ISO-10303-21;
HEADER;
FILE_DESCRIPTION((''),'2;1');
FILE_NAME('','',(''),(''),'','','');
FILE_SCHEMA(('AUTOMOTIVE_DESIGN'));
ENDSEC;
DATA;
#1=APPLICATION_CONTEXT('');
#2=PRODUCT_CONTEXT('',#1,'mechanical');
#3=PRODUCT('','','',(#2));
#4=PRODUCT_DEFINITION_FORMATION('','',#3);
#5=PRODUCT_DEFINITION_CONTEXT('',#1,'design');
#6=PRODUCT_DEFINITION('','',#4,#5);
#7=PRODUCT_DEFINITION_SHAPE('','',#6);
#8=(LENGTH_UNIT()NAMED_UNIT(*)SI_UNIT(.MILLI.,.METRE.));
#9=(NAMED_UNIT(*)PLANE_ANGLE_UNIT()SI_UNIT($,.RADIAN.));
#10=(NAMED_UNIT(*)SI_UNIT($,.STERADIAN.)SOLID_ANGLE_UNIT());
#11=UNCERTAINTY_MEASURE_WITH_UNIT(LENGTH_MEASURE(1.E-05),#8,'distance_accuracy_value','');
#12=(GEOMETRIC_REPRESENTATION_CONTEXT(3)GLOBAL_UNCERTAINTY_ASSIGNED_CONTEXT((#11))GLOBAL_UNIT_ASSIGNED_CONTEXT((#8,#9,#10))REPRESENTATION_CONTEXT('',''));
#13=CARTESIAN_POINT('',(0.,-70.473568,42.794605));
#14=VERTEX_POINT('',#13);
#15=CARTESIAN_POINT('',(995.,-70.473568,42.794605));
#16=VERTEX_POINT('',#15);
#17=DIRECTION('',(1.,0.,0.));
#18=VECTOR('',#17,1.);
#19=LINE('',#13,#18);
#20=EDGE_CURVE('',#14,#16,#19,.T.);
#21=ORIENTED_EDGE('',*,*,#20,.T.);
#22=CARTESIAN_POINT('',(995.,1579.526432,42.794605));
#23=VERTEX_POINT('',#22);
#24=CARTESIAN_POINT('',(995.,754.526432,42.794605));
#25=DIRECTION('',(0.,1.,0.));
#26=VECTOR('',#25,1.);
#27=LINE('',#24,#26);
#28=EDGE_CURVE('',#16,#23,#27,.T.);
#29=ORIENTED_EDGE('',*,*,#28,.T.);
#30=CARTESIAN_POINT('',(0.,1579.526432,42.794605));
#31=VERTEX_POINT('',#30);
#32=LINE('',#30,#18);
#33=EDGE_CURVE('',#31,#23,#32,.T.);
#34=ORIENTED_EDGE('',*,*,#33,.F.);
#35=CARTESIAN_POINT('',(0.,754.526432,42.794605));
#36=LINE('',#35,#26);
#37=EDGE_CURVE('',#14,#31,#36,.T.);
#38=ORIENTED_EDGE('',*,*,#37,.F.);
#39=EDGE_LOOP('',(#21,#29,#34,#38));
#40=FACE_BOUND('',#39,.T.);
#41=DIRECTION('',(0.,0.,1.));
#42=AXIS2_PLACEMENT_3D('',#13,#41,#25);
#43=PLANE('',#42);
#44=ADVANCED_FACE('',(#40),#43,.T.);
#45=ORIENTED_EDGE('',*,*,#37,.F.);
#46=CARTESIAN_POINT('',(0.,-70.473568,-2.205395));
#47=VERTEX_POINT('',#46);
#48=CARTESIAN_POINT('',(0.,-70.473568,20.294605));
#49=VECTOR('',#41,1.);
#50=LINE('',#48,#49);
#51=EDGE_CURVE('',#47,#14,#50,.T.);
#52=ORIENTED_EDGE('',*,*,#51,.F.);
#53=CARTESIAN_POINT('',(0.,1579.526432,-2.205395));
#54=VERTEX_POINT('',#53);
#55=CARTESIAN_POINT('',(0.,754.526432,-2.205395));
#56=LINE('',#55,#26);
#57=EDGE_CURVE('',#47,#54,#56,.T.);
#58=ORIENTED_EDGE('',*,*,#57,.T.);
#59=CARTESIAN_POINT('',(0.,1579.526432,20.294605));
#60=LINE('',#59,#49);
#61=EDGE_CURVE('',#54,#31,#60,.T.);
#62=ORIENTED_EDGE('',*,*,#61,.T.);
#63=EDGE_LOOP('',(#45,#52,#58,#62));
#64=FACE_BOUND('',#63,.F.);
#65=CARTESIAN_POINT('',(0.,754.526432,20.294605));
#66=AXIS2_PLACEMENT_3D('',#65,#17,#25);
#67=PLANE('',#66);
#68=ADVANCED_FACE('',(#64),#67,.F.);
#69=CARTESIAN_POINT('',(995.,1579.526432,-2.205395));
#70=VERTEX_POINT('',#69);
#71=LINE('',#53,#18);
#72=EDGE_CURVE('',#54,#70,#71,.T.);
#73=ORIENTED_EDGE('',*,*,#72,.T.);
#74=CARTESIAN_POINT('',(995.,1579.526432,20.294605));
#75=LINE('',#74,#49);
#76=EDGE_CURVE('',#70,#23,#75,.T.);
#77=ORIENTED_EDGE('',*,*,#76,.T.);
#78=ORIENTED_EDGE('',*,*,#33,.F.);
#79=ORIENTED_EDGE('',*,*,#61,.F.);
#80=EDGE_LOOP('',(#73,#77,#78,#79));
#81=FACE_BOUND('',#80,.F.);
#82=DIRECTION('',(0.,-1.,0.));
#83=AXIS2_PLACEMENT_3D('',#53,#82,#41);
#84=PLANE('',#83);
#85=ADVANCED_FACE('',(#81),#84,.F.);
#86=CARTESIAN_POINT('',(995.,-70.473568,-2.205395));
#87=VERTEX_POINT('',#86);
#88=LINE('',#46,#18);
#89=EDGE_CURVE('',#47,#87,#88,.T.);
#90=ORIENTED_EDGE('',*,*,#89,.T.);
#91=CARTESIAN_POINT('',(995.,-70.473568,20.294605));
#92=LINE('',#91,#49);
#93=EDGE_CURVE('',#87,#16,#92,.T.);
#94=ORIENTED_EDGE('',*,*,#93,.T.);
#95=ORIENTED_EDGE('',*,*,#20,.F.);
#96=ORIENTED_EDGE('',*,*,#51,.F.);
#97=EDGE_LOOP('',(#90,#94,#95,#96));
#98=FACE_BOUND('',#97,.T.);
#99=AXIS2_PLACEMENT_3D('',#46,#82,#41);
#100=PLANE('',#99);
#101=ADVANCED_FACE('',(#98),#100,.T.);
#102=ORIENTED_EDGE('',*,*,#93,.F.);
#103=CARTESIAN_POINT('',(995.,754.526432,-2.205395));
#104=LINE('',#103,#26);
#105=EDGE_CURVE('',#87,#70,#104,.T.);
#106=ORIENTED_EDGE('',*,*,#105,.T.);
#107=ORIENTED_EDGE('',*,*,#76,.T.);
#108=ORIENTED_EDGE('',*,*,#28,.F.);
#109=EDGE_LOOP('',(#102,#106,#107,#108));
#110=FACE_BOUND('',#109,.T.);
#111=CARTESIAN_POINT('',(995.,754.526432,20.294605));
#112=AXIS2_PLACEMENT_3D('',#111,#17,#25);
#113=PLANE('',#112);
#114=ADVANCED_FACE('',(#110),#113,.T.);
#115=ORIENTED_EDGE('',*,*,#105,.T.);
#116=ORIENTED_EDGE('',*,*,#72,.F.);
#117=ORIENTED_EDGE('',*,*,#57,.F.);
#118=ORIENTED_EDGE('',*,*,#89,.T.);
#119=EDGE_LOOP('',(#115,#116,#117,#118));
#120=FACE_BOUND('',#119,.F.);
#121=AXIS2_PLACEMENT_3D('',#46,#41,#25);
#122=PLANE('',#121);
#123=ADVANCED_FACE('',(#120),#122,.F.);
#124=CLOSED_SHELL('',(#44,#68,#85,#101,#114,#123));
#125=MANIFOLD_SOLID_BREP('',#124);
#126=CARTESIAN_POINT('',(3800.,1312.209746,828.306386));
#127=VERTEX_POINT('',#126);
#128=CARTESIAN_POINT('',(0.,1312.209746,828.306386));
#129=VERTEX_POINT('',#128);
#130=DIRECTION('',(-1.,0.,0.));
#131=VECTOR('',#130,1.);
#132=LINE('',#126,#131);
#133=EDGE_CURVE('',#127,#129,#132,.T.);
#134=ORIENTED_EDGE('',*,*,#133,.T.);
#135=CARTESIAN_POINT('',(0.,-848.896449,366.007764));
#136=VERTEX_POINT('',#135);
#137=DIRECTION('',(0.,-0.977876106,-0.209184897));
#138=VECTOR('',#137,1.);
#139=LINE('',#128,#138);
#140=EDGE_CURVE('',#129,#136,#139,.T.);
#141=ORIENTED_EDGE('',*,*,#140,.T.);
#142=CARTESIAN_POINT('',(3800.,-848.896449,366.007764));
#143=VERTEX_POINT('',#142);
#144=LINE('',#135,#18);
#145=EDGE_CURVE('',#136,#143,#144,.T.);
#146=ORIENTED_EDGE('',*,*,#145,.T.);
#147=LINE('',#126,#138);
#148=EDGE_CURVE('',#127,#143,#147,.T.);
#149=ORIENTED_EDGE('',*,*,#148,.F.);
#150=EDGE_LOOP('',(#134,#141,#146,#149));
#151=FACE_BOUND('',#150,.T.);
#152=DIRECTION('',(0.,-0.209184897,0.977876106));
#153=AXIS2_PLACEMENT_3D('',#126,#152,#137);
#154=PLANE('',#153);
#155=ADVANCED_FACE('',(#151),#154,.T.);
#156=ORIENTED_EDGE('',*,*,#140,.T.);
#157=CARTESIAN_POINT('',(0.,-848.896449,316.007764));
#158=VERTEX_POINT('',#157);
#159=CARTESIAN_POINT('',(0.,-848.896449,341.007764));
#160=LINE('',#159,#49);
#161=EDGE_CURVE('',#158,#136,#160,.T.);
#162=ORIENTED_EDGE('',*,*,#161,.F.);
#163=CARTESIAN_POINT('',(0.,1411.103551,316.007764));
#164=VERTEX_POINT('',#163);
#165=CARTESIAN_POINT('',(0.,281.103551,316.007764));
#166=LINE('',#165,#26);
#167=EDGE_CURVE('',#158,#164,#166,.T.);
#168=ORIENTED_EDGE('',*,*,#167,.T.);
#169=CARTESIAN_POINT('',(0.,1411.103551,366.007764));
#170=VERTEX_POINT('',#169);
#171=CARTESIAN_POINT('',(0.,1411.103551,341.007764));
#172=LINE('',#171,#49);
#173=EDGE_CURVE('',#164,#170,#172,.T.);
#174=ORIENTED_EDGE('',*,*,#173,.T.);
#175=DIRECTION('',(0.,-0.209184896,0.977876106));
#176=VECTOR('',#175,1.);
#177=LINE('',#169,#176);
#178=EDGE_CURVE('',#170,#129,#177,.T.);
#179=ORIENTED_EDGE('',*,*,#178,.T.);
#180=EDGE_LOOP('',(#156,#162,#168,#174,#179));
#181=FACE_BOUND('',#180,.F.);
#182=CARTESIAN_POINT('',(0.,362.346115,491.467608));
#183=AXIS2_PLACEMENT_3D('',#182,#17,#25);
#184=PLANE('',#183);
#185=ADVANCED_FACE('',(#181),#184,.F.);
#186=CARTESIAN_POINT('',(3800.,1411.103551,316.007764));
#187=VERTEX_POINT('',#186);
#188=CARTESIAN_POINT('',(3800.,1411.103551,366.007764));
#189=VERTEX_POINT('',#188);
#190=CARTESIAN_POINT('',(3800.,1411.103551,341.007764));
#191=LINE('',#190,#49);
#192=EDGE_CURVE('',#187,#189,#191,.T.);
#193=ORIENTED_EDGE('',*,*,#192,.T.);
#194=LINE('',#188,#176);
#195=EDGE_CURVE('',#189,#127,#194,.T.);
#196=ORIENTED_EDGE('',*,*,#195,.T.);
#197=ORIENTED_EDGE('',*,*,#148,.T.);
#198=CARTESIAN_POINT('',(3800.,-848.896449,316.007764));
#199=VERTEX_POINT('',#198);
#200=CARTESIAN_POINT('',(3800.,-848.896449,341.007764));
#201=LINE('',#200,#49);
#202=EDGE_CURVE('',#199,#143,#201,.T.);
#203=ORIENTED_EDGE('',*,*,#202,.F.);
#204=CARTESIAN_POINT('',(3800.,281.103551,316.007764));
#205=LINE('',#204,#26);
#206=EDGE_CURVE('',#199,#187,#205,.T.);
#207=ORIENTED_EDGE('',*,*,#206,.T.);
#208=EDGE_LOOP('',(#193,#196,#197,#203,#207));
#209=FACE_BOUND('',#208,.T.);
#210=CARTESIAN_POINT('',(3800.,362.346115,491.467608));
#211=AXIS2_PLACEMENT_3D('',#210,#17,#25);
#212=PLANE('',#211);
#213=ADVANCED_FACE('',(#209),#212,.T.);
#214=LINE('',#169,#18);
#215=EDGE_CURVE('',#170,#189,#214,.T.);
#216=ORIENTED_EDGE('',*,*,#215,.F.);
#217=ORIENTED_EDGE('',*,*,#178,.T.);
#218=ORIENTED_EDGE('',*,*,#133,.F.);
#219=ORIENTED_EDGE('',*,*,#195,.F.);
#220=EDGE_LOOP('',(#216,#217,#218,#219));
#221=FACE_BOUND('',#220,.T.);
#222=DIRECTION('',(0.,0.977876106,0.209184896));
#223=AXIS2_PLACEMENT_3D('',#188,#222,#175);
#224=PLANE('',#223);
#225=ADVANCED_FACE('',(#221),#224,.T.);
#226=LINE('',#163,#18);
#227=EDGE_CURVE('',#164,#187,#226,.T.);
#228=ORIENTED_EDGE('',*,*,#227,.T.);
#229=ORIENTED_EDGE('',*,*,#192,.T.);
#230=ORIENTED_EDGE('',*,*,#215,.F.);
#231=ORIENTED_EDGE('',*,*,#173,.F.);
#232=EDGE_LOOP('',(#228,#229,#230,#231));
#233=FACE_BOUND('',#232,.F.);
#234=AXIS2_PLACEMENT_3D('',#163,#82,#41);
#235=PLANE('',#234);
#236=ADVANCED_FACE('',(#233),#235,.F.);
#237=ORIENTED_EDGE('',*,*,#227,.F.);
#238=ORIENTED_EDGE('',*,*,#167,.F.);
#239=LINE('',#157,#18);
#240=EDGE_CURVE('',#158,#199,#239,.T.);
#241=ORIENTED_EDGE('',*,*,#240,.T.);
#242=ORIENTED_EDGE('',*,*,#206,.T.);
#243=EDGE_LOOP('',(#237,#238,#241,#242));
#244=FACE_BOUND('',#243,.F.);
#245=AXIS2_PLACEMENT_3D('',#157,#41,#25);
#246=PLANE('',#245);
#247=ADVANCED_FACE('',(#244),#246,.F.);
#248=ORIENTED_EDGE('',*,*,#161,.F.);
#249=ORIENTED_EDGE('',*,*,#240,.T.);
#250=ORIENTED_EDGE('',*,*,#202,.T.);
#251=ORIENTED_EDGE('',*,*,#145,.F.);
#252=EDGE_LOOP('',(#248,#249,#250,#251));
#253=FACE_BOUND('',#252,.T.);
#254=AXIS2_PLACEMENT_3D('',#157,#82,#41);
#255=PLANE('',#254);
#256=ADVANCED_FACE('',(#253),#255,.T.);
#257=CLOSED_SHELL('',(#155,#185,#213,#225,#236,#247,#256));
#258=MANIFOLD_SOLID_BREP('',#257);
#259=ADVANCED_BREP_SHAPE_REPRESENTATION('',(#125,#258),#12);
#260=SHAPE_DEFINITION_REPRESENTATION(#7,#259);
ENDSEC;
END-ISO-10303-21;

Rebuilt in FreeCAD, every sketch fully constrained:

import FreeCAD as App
import Part
import Sketcher
from FreeCAD import Vector
Q = App.Units.Quantity


def add_polygon(sketch, points):
    """Adds a closed chain of lines whose ends are joined by coincident constraints."""
    first, n = sketch.GeometryCount, len(points)
    for a, b in zip(points, points[1:] + points[:1]):
        sketch.addGeometry(Part.LineSegment(App.Vector(*a, 0), App.Vector(*b, 0)), False)
    for i in range(n):
        sketch.addConstraint(Sketcher.Constraint("Coincident", first + i, 2, first + (i + 1) % n, 1))

doc = App.newDocument("Part")
params = doc.addObject("Spreadsheet::Sheet", "Params")
for row, (alias, value) in enumerate([
    ("sketch1_width", "1650 mm"),
    ("sketch1_height", "45 mm"),
    ("pad1_length", "995 mm"),
    ("sketch2_width", "2260 mm"),
    ("sketch2_height", "50 mm"),
    ("pad2_length", "3800 mm"),
    ("sketch3_width", "2260 mm"),
    ("sketch3_length", "2210 mm"),
    ("pad3_length", "3800 mm"),
], start=1):
    params.set(f"A{row}", alias)
    params.set(f"B{row}", "=" + value)
    params.setAlias(f"B{row}", alias)

body = doc.addObject("PartDesign::Body", "Body")

sketch1 = body.newObject("Sketcher::SketchObject", "Sketch")
sketch1.AttachmentSupport = (doc.getObject("YZ_Plane"), [""])
sketch1.MapMode = "FlatFace"
add_polygon(sketch1, [(-70.473568, 42.794605), (-70.473568, -2.205395), (1579.526432, -2.205395), (1579.526432, 42.794605)])
sketch1.addConstraint(Sketcher.Constraint("Vertical", 0))
sketch1.addConstraint(Sketcher.Constraint("Horizontal", 1))
sketch1.addConstraint(Sketcher.Constraint("Vertical", 2))
sketch1.addConstraint(Sketcher.Constraint("Horizontal", 3))
sketch1.addConstraint(Sketcher.Constraint("DistanceX", 1, 1, 1, 2, Q("1650 mm")))
sketch1.addConstraint(Sketcher.Constraint("DistanceY", 0, 2, 0, 1, Q("45 mm")))
sketch1.addConstraint(Sketcher.Constraint("DistanceX", 0, 2, -1, 1, Q("70.473568 mm")))
sketch1.addConstraint(Sketcher.Constraint("DistanceY", 0, 2, -1, 1, Q("2.205395 mm")))
sketch1.setExpression("Constraints[8]", "Params.sketch1_width")
sketch1.setExpression("Constraints[9]", "Params.sketch1_height")
pad1 = body.newObject("PartDesign::Pad", "Pad")
pad1.Profile = sketch1
pad1.setExpression("Length", "Params.pad1_length")
body2 = doc.addObject("PartDesign::Body", "Body001")

sketch2 = body2.newObject("Sketcher::SketchObject", "Sketch001")
sketch2.AttachmentSupport = (doc.getObject("YZ_Plane001"), [""])
sketch2.MapMode = "FlatFace"
add_polygon(sketch2, [(-848.896449, 366.007764), (-848.896449, 316.007764), (1411.103551, 316.007764), (1411.103551, 366.007764)])
sketch2.addConstraint(Sketcher.Constraint("Vertical", 0))
sketch2.addConstraint(Sketcher.Constraint("Horizontal", 1))
sketch2.addConstraint(Sketcher.Constraint("Vertical", 2))
sketch2.addConstraint(Sketcher.Constraint("Horizontal", 3))
sketch2.addConstraint(Sketcher.Constraint("DistanceX", 1, 1, 1, 2, Q("2260 mm")))
sketch2.addConstraint(Sketcher.Constraint("DistanceY", 0, 2, 0, 1, Q("50 mm")))
sketch2.addConstraint(Sketcher.Constraint("DistanceX", 0, 2, -1, 1, Q("848.896449 mm")))
sketch2.addConstraint(Sketcher.Constraint("DistanceY", -1, 1, 0, 2, Q("316.007764 mm")))
sketch2.setExpression("Constraints[8]", "Params.sketch2_width")
sketch2.setExpression("Constraints[9]", "Params.sketch2_height")
pad2 = body2.newObject("PartDesign::Pad", "Pad001")
pad2.Profile = sketch2
pad2.setExpression("Length", "Params.pad2_length")

sketch3 = body2.newObject("Sketcher::SketchObject", "Sketch002")
sketch3.AttachmentSupport = (doc.getObject("YZ_Plane001"), [""])
sketch3.MapMode = "FlatFace"
sketch3.AttachmentOffset = App.Placement(Vector(0, 0, 3800), App.Rotation())
add_polygon(sketch3, [(1312.209746, 828.306386), (-848.896449, 366.007764), (1411.103551, 366.007764)])
sketch3.addConstraint(Sketcher.Constraint("Horizontal", 1))
sketch3.addConstraint(Sketcher.Constraint("Perpendicular", 0, 2))
sketch3.addConstraint(Sketcher.Constraint("DistanceX", 1, 1, 1, 2, Q("2260 mm")))
sketch3.addConstraint(Sketcher.Constraint("Distance", 0, Q("2210 mm")))
sketch3.addConstraint(Sketcher.Constraint("DistanceX", 0, 2, -1, 1, Q("848.896449 mm")))
sketch3.addConstraint(Sketcher.Constraint("DistanceY", -1, 1, 0, 2, Q("366.007764 mm")))
sketch3.setExpression("Constraints[5]", "Params.sketch3_width")
sketch3.setExpression("Constraints[6]", "Params.sketch3_length")
pad3 = body2.newObject("PartDesign::Pad", "Pad002")
pad3.Profile = sketch3
pad3.setExpression("Length", "Params.pad3_length")
pad3.Reversed = True

doc.recompute()
